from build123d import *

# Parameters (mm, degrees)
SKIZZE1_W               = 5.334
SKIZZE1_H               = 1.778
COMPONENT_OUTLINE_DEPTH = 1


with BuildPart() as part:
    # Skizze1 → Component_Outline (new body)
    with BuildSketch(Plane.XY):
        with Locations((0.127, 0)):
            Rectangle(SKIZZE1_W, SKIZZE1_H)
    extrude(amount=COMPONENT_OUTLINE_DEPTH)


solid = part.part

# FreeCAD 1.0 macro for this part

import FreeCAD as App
import Part
import Sketcher
from FreeCAD import Vector
Q = App.Units.Quantity


def add_polygon(sketch, points):
    """Adds a closed chain of lines whose ends are joined by coincident constraints."""
    first, n = sketch.GeometryCount, len(points)
    for a, b in zip(points, points[1:] + points[:1]):
        sketch.addGeometry(Part.LineSegment(App.Vector(*a, 0), App.Vector(*b, 0)), False)
    for i in range(n):
        sketch.addConstraint(Sketcher.Constraint("Coincident", first + i, 2, first + (i + 1) % n, 1))

doc = App.newDocument("Part")
params = doc.addObject("Spreadsheet::Sheet", "Params")
for row, (alias, value) in enumerate([
    ("sketch1_width", "0.21 in"),
    ("sketch1_height", "0.07 in"),
    ("pad1_length", "1 mm"),
], start=1):
    params.set(f"A{row}", alias)
    params.set(f"B{row}", "=" + value)
    params.setAlias(f"B{row}", alias)

body = doc.addObject("PartDesign::Body", "Body")

# Sketch on XY plane
sketch1 = body.newObject("Sketcher::SketchObject", "Sketch")
sketch1.AttachmentSupport = (doc.getObject("XY_Plane"), [""])
sketch1.MapMode = "FlatFace"
add_polygon(sketch1, [(-2.5, 0.9), (-2.5, -0.9), (2.8, -0.9), (2.8, 0.9)])  # lines 0-3
sketch1.addConstraint([
    Sketcher.Constraint("Vertical", 0),
    Sketcher.Constraint("Horizontal", 1),
    Sketcher.Constraint("Vertical", 2),
    Sketcher.Constraint("Horizontal", 3),
    Sketcher.Constraint("DistanceX", 1, 1, 1, 2, Q("0.21 in")),
    Sketcher.Constraint("DistanceY", 0, 2, 0, 1, Q("0.07 in")),
    Sketcher.Constraint("DistanceX", 0, 2, -1, 1, Q("0.1 in")),
    Sketcher.Constraint("DistanceY", 0, 2, -1, 1, Q("0.035 in")),
])
sketch1.setExpression("Constraints[8]", "Params.sketch1_width")
sketch1.setExpression("Constraints[9]", "Params.sketch1_height")
pad1 = body.newObject("PartDesign::Pad", "Pad")
pad1.Profile = sketch1
pad1.setExpression("Length", "Params.pad1_length")

doc.recompute()
